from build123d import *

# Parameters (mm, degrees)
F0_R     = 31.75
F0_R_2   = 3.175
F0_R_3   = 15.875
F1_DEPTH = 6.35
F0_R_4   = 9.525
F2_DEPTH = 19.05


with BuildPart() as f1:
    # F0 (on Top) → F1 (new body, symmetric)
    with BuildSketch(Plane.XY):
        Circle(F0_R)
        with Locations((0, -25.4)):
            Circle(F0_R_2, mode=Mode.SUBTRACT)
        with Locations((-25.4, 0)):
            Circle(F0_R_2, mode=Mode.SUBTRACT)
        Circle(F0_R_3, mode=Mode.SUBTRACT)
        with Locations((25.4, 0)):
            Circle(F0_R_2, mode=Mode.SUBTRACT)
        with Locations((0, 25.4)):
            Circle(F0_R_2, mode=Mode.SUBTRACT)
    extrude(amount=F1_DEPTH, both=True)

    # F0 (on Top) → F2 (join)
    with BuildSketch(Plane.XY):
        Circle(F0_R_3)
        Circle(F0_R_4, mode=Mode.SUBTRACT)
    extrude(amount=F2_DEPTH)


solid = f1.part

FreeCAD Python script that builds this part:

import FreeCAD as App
import Part
import Sketcher

V = App.Vector
Q = App.Units.Quantity

doc = App.newDocument("Part")
body = doc.addObject("PartDesign::Body", "Body")

sketch1 = doc.addObject("Sketcher::SketchObject", "Sketch")
body.addObject(sketch1)
sketch1.AttachmentSupport = (doc.XY_Plane, [""])
sketch1.MapMode = "FlatFace"
sketch1.addGeometry(Part.Circle(V(0, 0, 0), V(0, 0, 1), 31.75), False)
sketch1.addGeometry(Part.Circle(V(0, -25.4, 0), V(0, 0, 1), 3.175), False)
sketch1.addGeometry(Part.Circle(V(0, 0, 0), V(0, 0, 1), 15.875), False)
sketch1.addGeometry(Part.Circle(V(-25.4, 0, 0), V(0, 0, 1), 3.175), False)
sketch1.addGeometry(Part.Circle(V(25.4, 0, 0), V(0, 0, 1), 3.175), False)
sketch1.addGeometry(Part.Circle(V(0, 25.4, 0), V(0, 0, 1), 3.175), False)
sketch1.addConstraint(Sketcher.Constraint("Coincident", 0, 3, -1, 1))
sketch1.addConstraint(Sketcher.Constraint("Coincident", 2, 3, -1, 1))
sketch1.addConstraint(Sketcher.Constraint("Equal", 1, 3))
sketch1.addConstraint(Sketcher.Constraint("Equal", 3, 4))
sketch1.addConstraint(Sketcher.Constraint("Equal", 4, 5))
sketch1.addConstraint(Sketcher.Constraint("Symmetric", 3, 3, 4, 3, -1, 1))
sketch1.addConstraint(Sketcher.Constraint("Symmetric", 1, 3, 5, 3, -1, 1))
sketch1.addConstraint(Sketcher.Constraint("PointOnObject", 1, 3, -2))
sketch1.addConstraint(Sketcher.Constraint("PointOnObject", 3, 3, -1))
sketch1.addConstraint(Sketcher.Constraint("Diameter", 0, Q("2.5 in")))
sketch1.addConstraint(Sketcher.Constraint("Diameter", 1, Q("0.25 in")))
sketch1.addConstraint(Sketcher.Constraint("Diameter", 2, Q("1.25 in")))
sketch1.addConstraint(Sketcher.Constraint("DistanceY", 1, 3, -1, 1, Q("1 in")))
sketch1.addConstraint(Sketcher.Constraint("DistanceX", 3, 3, -1, 1, Q("1 in")))
pad1 = doc.addObject("PartDesign::Pad", "Pad")
body.addObject(pad1)
pad1.Profile = sketch1
pad1.Length = Q("0.5 in")
pad1.Midplane = True

sketch2 = doc.addObject("Sketcher::SketchObject", "Sketch001")
body.addObject(sketch2)
sketch2.AttachmentSupport = (doc.XY_Plane, [""])
sketch2.MapMode = "FlatFace"
sketch2.addGeometry(Part.Circle(V(0, 0, 0), V(0, 0, 1), 15.875), False)
sketch2.addGeometry(Part.Circle(V(0, 0, 0), V(0, 0, 1), 9.525), False)
sketch2.addConstraint(Sketcher.Constraint("Coincident", 0, 3, -1, 1))
sketch2.addConstraint(Sketcher.Constraint("Coincident", 1, 3, -1, 1))
sketch2.addConstraint(Sketcher.Constraint("Diameter", 0, Q("1.25 in")))
sketch2.addConstraint(Sketcher.Constraint("Diameter", 1, Q("0.75 in")))
pad2 = doc.addObject("PartDesign::Pad", "Pad001")
body.addObject(pad2)
pad2.Profile = sketch2
pad2.Length = Q("0.75 in")

doc.recompute()
